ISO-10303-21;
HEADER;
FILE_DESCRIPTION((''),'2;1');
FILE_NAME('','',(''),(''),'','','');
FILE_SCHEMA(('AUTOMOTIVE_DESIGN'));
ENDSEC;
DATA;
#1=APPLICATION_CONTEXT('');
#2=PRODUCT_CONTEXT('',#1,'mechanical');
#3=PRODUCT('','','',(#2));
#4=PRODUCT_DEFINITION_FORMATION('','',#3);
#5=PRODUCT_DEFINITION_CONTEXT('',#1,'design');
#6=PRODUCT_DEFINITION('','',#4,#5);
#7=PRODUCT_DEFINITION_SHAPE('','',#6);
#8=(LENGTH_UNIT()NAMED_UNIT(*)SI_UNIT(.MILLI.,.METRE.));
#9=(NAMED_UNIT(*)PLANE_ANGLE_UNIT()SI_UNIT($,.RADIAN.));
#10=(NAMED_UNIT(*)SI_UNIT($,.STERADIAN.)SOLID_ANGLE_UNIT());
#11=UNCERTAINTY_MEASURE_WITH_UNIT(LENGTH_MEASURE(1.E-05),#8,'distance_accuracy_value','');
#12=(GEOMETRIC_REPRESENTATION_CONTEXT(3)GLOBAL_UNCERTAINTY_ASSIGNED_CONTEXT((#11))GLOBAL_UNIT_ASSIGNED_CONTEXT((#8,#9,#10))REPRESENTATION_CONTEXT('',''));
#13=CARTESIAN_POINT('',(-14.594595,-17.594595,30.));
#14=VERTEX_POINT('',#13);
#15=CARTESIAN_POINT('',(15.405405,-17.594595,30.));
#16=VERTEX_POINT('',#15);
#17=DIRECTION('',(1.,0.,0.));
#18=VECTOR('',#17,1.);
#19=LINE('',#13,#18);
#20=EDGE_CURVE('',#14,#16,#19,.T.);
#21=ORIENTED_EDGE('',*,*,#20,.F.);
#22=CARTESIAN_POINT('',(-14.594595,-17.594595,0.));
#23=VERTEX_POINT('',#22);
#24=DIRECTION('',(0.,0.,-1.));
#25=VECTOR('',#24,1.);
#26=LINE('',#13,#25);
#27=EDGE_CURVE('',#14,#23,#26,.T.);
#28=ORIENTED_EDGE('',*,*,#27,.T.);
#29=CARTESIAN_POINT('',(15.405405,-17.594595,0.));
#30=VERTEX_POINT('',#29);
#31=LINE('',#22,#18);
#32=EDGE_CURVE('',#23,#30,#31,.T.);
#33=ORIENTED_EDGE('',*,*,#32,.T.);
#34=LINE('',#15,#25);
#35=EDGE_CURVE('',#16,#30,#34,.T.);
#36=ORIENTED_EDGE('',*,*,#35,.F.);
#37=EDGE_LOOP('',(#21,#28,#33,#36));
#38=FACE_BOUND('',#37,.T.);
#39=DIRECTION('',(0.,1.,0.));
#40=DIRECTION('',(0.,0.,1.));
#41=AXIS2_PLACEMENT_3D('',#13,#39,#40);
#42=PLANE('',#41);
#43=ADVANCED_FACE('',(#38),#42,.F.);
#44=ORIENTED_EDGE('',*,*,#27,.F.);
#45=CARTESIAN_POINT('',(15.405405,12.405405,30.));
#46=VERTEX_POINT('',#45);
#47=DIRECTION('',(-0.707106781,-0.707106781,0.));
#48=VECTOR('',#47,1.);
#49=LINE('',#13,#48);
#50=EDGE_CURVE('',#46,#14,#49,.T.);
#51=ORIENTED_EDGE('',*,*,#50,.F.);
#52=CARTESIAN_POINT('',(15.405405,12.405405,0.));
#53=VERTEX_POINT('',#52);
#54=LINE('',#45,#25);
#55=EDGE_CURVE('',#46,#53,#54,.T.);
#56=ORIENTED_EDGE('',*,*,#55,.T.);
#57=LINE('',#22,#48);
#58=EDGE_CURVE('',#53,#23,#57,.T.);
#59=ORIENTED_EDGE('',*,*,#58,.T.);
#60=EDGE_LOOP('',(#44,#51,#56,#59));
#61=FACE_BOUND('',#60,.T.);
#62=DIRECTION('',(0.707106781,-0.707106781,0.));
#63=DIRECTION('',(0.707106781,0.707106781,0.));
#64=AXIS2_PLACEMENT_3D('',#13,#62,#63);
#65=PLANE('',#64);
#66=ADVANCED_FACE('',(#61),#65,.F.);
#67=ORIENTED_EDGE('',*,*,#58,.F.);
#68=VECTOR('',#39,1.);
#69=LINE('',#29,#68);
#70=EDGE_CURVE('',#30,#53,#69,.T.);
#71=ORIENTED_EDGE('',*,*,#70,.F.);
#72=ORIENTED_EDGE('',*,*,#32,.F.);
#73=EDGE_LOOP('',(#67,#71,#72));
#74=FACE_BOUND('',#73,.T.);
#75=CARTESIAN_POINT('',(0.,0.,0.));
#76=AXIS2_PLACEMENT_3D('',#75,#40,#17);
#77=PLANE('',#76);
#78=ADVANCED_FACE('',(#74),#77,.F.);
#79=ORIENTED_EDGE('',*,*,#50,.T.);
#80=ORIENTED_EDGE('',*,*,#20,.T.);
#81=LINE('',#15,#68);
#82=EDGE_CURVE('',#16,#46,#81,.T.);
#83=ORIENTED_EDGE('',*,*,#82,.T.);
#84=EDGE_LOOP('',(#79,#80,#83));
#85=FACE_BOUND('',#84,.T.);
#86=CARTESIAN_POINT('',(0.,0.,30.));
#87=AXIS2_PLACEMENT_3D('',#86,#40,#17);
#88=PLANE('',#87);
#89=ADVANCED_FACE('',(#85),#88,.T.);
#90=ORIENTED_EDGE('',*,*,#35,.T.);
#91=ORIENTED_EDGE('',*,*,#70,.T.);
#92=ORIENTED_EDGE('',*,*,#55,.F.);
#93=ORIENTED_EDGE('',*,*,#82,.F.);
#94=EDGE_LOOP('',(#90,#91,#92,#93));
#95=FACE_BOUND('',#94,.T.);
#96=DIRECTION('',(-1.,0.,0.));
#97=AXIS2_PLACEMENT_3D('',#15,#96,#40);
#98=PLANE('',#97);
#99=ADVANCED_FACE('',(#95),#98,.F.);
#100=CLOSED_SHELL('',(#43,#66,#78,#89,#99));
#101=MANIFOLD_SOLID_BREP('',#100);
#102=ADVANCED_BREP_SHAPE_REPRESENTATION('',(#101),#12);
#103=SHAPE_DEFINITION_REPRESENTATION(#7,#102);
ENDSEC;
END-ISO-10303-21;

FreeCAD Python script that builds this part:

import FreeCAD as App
import Part
import Sketcher
Q = App.Units.Quantity


def add_polygon(sketch, points):
    """Adds a closed chain of lines whose ends are joined by coincident constraints."""
    first, n = sketch.GeometryCount, len(points)
    for a, b in zip(points, points[1:] + points[:1]):
        sketch.addGeometry(Part.LineSegment(App.Vector(*a, 0), App.Vector(*b, 0)), False)
    for i in range(n):
        sketch.addConstraint(Sketcher.Constraint("Coincident", first + i, 2, first + (i + 1) % n, 1))

doc = App.newDocument("Part")
body = doc.addObject("PartDesign::Body", "Body")

# Sketch on XY plane
sketch1 = body.newObject("Sketcher::SketchObject", "Sketch")
sketch1.AttachmentSupport = (doc.getObject("XY_Plane"), [""])
sketch1.MapMode = "FlatFace"
add_polygon(sketch1, [(15, 12), (-15, -18), (15, -18)])  # lines 0-2
sketch1.addConstraint(Sketcher.Constraint("Horizontal", 1))
sketch1.addConstraint(Sketcher.Constraint("Vertical", 2))
sketch1.addConstraint(Sketcher.Constraint("Equal", 1, 2))
sketch1.addConstraint(Sketcher.Constraint("DistanceX", 1, 1, 1, 2, Q("30 mm")))
sketch1.addConstraint(Sketcher.Constraint("DistanceX", 0, 2, -1, 1, Q("14.594595 mm")))
sketch1.addConstraint(Sketcher.Constraint("DistanceY", 0, 2, -1, 1, Q("17.594595 mm")))
pad1 = body.newObject("PartDesign::Pad", "Pad")
pad1.Profile = sketch1
pad1.Length = 30

doc.recompute()
